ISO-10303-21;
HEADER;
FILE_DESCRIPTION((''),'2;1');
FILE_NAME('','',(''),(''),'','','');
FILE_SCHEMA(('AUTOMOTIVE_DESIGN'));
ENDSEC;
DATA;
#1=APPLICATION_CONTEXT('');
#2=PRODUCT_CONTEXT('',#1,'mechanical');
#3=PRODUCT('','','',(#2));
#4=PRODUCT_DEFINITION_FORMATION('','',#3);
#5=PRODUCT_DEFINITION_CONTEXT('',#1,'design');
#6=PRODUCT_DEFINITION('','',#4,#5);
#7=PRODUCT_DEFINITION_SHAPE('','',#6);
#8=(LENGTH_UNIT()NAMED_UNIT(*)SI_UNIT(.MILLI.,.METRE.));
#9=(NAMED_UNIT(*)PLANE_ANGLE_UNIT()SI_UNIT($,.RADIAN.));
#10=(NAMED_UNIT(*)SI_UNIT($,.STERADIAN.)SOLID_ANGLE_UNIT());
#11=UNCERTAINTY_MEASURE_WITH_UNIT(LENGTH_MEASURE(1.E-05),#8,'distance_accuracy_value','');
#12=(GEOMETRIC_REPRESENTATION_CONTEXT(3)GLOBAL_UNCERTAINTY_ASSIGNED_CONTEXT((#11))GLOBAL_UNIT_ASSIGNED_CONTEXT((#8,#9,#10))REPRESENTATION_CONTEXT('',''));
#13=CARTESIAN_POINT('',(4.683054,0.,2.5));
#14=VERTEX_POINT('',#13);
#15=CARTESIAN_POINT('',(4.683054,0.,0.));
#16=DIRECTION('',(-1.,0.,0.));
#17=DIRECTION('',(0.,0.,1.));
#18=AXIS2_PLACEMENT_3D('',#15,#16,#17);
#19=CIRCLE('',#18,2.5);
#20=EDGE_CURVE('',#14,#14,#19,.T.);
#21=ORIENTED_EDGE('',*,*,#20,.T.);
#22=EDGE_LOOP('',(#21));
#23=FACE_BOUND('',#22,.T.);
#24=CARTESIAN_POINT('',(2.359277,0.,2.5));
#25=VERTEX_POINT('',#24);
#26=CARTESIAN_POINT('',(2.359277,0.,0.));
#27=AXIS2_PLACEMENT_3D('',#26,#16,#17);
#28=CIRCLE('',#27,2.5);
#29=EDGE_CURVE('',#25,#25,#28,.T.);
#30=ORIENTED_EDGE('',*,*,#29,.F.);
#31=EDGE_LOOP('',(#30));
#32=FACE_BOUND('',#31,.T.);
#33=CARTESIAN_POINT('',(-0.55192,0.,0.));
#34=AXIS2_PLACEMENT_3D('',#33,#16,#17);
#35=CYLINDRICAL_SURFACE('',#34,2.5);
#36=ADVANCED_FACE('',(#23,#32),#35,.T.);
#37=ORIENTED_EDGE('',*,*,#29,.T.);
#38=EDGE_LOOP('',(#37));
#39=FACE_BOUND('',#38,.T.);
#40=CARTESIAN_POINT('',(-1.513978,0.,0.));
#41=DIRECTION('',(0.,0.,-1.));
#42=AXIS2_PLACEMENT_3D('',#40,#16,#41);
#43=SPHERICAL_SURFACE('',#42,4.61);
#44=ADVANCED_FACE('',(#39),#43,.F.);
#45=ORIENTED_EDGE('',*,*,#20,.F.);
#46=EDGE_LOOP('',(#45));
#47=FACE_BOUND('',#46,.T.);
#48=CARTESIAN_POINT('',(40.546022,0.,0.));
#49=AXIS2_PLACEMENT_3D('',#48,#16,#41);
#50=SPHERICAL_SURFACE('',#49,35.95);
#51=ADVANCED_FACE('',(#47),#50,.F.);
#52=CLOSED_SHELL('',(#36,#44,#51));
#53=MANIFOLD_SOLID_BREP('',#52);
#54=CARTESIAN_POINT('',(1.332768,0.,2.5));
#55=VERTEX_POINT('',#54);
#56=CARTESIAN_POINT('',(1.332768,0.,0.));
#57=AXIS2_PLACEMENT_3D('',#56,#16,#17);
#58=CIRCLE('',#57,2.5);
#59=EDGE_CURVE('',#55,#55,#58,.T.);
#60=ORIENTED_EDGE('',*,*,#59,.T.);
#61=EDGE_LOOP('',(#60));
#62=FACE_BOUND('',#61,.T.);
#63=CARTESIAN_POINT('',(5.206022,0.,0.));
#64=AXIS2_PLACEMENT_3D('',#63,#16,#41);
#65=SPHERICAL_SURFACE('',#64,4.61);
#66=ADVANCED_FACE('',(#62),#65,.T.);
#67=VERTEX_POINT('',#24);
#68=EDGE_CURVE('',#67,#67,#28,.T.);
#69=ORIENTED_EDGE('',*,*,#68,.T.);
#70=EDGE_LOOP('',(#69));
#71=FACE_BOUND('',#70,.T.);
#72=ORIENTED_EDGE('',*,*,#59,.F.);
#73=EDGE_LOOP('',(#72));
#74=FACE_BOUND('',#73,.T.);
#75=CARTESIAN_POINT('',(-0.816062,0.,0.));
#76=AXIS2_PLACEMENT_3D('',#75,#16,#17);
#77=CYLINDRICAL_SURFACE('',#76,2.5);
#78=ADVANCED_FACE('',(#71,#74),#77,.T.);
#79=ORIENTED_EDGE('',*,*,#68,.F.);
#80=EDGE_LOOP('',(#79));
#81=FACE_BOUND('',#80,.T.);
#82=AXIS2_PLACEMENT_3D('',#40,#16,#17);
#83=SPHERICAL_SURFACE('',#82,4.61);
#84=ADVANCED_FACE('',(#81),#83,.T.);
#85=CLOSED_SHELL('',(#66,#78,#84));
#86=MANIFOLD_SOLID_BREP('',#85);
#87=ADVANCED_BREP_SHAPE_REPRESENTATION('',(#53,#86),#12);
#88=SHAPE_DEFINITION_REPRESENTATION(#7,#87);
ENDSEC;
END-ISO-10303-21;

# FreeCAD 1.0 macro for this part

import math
import FreeCAD as App
import Part
import Sketcher
from FreeCAD import Vector
Q = App.Units.Quantity

doc = App.newDocument("Part")
body = doc.addObject("PartDesign::Body", "Body")

# Sketch on XZ plane
sketch1 = body.newObject("Sketcher::SketchObject", "Sketch")
sketch1.AttachmentSupport = (doc.getObject("XZ_Plane"), [""])
sketch1.MapMode = "FlatFace"
sketch1.addGeometry([
    Part.ArcOfCircle(Part.Circle(Vector(5.206022, 0, 0), Vector(0, 0, 1), 4.61), math.radians(-180), math.radians(-147.159697)),
    Part.LineSegment(Vector(0.596022, 0, 0), Vector(3.096022, 0, 0)),
    Part.ArcOfCircle(Part.Circle(Vector(-1.513978, 0, 0), Vector(0, 0, 1), 4.61), math.radians(-32.840303), math.radians(0)),
    Part.LineSegment(Vector(2.359277, -2.5, 0), Vector(1.332768, -2.5, 0)),
], False)
sketch1.addConstraint([
    Sketcher.Constraint("Coincident", 0, 1, 1, 1),
    Sketcher.Constraint("Coincident", 1, 2, 2, 2),
    Sketcher.Constraint("Coincident", 2, 1, 3, 1),
    Sketcher.Constraint("Coincident", 3, 2, 0, 2),
    Sketcher.Constraint("Horizontal", 1),
    Sketcher.Constraint("Horizontal", 3),
    Sketcher.Constraint("Equal", 0, 2),
    Sketcher.Constraint("PointOnObject", 0, 3, -1),
    Sketcher.Constraint("PointOnObject", 2, 3, -1),
    Sketcher.Constraint("PointOnObject", 0, 1, -1),
    Sketcher.Constraint("Radius", 0, Q("4.61 mm")),
    Sketcher.Constraint("DistanceX", 1, 1, 1, 2, Q("2.5 mm")),
    Sketcher.Constraint("DistanceY", 2, 1, -1, 1, Q("2.5 mm")),
    Sketcher.Constraint("DistanceX", -1, 1, 3, 2, Q("1.332768 mm")),
])
revolution = body.newObject("PartDesign::Revolution", "Revolution")
revolution.Profile = sketch1
revolution.ReferenceAxis = (sketch1, ["H_Axis"])
revolution.Angle = 360
body2 = doc.addObject("PartDesign::Body", "Body001")

# Sketch on XZ plane
sketch2 = body2.newObject("Sketcher::SketchObject", "Sketch001")
sketch2.AttachmentSupport = (doc.getObject("XZ_Plane001"), [""])
sketch2.MapMode = "FlatFace"
sketch2.addGeometry([
    Part.LineSegment(Vector(4.683054, -2.5, 0), Vector(2.359277, -2.5, 0)),
    Part.ArcOfCircle(Part.Circle(Vector(-1.513978, 0, 0), Vector(0, 0, 1), 4.61), math.radians(-32.840303), math.radians(0)),
    Part.LineSegment(Vector(3.096022, 0, 0), Vector(4.596022, 0, 0)),
    Part.ArcOfCircle(Part.Circle(Vector(40.546023, 0, 0), Vector(0, 0, 1), 35.950001), math.radians(-180), math.radians(-176.012374)),
], False)
sketch2.addConstraint([
    Sketcher.Constraint("Coincident", 0, 2, 1, 1),
    Sketcher.Constraint("Coincident", 1, 2, 2, 1),
    Sketcher.Constraint("Coincident", 2, 2, 3, 1),
    Sketcher.Constraint("Coincident", 3, 2, 0, 1),
    Sketcher.Constraint("Horizontal", 0),
    Sketcher.Constraint("Horizontal", 2),
    Sketcher.Constraint("PointOnObject", 1, 3, -1),
    Sketcher.Constraint("PointOnObject", 3, 3, -1),
    Sketcher.Constraint("PointOnObject", 1, 2, -1),
    Sketcher.Constraint("Radius", 1, Q("4.61 mm")),
    Sketcher.Constraint("Radius", 3, Q("35.950001 mm")),
    Sketcher.Constraint("DistanceX", 2, 1, 2, 2, Q("1.5 mm")),
    Sketcher.Constraint("DistanceY", 0, 2, -1, 1, Q("2.5 mm")),
    Sketcher.Constraint("DistanceX", 1, 3, -1, 1, Q("1.513978 mm")),
])
revolution2 = body2.newObject("PartDesign::Revolution", "Revolution001")
revolution2.Profile = sketch2
revolution2.ReferenceAxis = (sketch2, ["H_Axis"])
revolution2.Angle = 360

doc.recompute()
